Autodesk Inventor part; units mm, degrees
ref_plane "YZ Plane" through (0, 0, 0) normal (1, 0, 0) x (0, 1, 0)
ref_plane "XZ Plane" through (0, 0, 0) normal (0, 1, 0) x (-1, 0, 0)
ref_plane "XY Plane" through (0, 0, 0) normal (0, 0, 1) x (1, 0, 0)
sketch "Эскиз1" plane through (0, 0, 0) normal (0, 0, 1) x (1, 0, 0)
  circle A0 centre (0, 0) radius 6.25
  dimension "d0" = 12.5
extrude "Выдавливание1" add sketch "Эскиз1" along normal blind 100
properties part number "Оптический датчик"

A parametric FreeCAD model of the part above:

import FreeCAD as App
import Part
import Sketcher
from FreeCAD import Vector

doc = App.newDocument("Part")
body = doc.addObject("PartDesign::Body", "Body")

sketch1 = body.newObject("Sketcher::SketchObject", "Sketch")
sketch1.AttachmentSupport = (doc.getObject("XY_Plane"), [""])
sketch1.MapMode = "FlatFace"
sketch1.addGeometry(Part.Circle(Vector(0, 0, 0), Vector(0, 0, 1), 6.25), False)
sketch1.addConstraint(Sketcher.Constraint("Coincident", 0, 3, -1, 1))
sketch1.addConstraint(Sketcher.Constraint("Diameter", 0, 12.5))
pad1 = body.newObject("PartDesign::Pad", "Pad")
pad1.Profile = sketch1
pad1.Length = 100

doc.recompute()
